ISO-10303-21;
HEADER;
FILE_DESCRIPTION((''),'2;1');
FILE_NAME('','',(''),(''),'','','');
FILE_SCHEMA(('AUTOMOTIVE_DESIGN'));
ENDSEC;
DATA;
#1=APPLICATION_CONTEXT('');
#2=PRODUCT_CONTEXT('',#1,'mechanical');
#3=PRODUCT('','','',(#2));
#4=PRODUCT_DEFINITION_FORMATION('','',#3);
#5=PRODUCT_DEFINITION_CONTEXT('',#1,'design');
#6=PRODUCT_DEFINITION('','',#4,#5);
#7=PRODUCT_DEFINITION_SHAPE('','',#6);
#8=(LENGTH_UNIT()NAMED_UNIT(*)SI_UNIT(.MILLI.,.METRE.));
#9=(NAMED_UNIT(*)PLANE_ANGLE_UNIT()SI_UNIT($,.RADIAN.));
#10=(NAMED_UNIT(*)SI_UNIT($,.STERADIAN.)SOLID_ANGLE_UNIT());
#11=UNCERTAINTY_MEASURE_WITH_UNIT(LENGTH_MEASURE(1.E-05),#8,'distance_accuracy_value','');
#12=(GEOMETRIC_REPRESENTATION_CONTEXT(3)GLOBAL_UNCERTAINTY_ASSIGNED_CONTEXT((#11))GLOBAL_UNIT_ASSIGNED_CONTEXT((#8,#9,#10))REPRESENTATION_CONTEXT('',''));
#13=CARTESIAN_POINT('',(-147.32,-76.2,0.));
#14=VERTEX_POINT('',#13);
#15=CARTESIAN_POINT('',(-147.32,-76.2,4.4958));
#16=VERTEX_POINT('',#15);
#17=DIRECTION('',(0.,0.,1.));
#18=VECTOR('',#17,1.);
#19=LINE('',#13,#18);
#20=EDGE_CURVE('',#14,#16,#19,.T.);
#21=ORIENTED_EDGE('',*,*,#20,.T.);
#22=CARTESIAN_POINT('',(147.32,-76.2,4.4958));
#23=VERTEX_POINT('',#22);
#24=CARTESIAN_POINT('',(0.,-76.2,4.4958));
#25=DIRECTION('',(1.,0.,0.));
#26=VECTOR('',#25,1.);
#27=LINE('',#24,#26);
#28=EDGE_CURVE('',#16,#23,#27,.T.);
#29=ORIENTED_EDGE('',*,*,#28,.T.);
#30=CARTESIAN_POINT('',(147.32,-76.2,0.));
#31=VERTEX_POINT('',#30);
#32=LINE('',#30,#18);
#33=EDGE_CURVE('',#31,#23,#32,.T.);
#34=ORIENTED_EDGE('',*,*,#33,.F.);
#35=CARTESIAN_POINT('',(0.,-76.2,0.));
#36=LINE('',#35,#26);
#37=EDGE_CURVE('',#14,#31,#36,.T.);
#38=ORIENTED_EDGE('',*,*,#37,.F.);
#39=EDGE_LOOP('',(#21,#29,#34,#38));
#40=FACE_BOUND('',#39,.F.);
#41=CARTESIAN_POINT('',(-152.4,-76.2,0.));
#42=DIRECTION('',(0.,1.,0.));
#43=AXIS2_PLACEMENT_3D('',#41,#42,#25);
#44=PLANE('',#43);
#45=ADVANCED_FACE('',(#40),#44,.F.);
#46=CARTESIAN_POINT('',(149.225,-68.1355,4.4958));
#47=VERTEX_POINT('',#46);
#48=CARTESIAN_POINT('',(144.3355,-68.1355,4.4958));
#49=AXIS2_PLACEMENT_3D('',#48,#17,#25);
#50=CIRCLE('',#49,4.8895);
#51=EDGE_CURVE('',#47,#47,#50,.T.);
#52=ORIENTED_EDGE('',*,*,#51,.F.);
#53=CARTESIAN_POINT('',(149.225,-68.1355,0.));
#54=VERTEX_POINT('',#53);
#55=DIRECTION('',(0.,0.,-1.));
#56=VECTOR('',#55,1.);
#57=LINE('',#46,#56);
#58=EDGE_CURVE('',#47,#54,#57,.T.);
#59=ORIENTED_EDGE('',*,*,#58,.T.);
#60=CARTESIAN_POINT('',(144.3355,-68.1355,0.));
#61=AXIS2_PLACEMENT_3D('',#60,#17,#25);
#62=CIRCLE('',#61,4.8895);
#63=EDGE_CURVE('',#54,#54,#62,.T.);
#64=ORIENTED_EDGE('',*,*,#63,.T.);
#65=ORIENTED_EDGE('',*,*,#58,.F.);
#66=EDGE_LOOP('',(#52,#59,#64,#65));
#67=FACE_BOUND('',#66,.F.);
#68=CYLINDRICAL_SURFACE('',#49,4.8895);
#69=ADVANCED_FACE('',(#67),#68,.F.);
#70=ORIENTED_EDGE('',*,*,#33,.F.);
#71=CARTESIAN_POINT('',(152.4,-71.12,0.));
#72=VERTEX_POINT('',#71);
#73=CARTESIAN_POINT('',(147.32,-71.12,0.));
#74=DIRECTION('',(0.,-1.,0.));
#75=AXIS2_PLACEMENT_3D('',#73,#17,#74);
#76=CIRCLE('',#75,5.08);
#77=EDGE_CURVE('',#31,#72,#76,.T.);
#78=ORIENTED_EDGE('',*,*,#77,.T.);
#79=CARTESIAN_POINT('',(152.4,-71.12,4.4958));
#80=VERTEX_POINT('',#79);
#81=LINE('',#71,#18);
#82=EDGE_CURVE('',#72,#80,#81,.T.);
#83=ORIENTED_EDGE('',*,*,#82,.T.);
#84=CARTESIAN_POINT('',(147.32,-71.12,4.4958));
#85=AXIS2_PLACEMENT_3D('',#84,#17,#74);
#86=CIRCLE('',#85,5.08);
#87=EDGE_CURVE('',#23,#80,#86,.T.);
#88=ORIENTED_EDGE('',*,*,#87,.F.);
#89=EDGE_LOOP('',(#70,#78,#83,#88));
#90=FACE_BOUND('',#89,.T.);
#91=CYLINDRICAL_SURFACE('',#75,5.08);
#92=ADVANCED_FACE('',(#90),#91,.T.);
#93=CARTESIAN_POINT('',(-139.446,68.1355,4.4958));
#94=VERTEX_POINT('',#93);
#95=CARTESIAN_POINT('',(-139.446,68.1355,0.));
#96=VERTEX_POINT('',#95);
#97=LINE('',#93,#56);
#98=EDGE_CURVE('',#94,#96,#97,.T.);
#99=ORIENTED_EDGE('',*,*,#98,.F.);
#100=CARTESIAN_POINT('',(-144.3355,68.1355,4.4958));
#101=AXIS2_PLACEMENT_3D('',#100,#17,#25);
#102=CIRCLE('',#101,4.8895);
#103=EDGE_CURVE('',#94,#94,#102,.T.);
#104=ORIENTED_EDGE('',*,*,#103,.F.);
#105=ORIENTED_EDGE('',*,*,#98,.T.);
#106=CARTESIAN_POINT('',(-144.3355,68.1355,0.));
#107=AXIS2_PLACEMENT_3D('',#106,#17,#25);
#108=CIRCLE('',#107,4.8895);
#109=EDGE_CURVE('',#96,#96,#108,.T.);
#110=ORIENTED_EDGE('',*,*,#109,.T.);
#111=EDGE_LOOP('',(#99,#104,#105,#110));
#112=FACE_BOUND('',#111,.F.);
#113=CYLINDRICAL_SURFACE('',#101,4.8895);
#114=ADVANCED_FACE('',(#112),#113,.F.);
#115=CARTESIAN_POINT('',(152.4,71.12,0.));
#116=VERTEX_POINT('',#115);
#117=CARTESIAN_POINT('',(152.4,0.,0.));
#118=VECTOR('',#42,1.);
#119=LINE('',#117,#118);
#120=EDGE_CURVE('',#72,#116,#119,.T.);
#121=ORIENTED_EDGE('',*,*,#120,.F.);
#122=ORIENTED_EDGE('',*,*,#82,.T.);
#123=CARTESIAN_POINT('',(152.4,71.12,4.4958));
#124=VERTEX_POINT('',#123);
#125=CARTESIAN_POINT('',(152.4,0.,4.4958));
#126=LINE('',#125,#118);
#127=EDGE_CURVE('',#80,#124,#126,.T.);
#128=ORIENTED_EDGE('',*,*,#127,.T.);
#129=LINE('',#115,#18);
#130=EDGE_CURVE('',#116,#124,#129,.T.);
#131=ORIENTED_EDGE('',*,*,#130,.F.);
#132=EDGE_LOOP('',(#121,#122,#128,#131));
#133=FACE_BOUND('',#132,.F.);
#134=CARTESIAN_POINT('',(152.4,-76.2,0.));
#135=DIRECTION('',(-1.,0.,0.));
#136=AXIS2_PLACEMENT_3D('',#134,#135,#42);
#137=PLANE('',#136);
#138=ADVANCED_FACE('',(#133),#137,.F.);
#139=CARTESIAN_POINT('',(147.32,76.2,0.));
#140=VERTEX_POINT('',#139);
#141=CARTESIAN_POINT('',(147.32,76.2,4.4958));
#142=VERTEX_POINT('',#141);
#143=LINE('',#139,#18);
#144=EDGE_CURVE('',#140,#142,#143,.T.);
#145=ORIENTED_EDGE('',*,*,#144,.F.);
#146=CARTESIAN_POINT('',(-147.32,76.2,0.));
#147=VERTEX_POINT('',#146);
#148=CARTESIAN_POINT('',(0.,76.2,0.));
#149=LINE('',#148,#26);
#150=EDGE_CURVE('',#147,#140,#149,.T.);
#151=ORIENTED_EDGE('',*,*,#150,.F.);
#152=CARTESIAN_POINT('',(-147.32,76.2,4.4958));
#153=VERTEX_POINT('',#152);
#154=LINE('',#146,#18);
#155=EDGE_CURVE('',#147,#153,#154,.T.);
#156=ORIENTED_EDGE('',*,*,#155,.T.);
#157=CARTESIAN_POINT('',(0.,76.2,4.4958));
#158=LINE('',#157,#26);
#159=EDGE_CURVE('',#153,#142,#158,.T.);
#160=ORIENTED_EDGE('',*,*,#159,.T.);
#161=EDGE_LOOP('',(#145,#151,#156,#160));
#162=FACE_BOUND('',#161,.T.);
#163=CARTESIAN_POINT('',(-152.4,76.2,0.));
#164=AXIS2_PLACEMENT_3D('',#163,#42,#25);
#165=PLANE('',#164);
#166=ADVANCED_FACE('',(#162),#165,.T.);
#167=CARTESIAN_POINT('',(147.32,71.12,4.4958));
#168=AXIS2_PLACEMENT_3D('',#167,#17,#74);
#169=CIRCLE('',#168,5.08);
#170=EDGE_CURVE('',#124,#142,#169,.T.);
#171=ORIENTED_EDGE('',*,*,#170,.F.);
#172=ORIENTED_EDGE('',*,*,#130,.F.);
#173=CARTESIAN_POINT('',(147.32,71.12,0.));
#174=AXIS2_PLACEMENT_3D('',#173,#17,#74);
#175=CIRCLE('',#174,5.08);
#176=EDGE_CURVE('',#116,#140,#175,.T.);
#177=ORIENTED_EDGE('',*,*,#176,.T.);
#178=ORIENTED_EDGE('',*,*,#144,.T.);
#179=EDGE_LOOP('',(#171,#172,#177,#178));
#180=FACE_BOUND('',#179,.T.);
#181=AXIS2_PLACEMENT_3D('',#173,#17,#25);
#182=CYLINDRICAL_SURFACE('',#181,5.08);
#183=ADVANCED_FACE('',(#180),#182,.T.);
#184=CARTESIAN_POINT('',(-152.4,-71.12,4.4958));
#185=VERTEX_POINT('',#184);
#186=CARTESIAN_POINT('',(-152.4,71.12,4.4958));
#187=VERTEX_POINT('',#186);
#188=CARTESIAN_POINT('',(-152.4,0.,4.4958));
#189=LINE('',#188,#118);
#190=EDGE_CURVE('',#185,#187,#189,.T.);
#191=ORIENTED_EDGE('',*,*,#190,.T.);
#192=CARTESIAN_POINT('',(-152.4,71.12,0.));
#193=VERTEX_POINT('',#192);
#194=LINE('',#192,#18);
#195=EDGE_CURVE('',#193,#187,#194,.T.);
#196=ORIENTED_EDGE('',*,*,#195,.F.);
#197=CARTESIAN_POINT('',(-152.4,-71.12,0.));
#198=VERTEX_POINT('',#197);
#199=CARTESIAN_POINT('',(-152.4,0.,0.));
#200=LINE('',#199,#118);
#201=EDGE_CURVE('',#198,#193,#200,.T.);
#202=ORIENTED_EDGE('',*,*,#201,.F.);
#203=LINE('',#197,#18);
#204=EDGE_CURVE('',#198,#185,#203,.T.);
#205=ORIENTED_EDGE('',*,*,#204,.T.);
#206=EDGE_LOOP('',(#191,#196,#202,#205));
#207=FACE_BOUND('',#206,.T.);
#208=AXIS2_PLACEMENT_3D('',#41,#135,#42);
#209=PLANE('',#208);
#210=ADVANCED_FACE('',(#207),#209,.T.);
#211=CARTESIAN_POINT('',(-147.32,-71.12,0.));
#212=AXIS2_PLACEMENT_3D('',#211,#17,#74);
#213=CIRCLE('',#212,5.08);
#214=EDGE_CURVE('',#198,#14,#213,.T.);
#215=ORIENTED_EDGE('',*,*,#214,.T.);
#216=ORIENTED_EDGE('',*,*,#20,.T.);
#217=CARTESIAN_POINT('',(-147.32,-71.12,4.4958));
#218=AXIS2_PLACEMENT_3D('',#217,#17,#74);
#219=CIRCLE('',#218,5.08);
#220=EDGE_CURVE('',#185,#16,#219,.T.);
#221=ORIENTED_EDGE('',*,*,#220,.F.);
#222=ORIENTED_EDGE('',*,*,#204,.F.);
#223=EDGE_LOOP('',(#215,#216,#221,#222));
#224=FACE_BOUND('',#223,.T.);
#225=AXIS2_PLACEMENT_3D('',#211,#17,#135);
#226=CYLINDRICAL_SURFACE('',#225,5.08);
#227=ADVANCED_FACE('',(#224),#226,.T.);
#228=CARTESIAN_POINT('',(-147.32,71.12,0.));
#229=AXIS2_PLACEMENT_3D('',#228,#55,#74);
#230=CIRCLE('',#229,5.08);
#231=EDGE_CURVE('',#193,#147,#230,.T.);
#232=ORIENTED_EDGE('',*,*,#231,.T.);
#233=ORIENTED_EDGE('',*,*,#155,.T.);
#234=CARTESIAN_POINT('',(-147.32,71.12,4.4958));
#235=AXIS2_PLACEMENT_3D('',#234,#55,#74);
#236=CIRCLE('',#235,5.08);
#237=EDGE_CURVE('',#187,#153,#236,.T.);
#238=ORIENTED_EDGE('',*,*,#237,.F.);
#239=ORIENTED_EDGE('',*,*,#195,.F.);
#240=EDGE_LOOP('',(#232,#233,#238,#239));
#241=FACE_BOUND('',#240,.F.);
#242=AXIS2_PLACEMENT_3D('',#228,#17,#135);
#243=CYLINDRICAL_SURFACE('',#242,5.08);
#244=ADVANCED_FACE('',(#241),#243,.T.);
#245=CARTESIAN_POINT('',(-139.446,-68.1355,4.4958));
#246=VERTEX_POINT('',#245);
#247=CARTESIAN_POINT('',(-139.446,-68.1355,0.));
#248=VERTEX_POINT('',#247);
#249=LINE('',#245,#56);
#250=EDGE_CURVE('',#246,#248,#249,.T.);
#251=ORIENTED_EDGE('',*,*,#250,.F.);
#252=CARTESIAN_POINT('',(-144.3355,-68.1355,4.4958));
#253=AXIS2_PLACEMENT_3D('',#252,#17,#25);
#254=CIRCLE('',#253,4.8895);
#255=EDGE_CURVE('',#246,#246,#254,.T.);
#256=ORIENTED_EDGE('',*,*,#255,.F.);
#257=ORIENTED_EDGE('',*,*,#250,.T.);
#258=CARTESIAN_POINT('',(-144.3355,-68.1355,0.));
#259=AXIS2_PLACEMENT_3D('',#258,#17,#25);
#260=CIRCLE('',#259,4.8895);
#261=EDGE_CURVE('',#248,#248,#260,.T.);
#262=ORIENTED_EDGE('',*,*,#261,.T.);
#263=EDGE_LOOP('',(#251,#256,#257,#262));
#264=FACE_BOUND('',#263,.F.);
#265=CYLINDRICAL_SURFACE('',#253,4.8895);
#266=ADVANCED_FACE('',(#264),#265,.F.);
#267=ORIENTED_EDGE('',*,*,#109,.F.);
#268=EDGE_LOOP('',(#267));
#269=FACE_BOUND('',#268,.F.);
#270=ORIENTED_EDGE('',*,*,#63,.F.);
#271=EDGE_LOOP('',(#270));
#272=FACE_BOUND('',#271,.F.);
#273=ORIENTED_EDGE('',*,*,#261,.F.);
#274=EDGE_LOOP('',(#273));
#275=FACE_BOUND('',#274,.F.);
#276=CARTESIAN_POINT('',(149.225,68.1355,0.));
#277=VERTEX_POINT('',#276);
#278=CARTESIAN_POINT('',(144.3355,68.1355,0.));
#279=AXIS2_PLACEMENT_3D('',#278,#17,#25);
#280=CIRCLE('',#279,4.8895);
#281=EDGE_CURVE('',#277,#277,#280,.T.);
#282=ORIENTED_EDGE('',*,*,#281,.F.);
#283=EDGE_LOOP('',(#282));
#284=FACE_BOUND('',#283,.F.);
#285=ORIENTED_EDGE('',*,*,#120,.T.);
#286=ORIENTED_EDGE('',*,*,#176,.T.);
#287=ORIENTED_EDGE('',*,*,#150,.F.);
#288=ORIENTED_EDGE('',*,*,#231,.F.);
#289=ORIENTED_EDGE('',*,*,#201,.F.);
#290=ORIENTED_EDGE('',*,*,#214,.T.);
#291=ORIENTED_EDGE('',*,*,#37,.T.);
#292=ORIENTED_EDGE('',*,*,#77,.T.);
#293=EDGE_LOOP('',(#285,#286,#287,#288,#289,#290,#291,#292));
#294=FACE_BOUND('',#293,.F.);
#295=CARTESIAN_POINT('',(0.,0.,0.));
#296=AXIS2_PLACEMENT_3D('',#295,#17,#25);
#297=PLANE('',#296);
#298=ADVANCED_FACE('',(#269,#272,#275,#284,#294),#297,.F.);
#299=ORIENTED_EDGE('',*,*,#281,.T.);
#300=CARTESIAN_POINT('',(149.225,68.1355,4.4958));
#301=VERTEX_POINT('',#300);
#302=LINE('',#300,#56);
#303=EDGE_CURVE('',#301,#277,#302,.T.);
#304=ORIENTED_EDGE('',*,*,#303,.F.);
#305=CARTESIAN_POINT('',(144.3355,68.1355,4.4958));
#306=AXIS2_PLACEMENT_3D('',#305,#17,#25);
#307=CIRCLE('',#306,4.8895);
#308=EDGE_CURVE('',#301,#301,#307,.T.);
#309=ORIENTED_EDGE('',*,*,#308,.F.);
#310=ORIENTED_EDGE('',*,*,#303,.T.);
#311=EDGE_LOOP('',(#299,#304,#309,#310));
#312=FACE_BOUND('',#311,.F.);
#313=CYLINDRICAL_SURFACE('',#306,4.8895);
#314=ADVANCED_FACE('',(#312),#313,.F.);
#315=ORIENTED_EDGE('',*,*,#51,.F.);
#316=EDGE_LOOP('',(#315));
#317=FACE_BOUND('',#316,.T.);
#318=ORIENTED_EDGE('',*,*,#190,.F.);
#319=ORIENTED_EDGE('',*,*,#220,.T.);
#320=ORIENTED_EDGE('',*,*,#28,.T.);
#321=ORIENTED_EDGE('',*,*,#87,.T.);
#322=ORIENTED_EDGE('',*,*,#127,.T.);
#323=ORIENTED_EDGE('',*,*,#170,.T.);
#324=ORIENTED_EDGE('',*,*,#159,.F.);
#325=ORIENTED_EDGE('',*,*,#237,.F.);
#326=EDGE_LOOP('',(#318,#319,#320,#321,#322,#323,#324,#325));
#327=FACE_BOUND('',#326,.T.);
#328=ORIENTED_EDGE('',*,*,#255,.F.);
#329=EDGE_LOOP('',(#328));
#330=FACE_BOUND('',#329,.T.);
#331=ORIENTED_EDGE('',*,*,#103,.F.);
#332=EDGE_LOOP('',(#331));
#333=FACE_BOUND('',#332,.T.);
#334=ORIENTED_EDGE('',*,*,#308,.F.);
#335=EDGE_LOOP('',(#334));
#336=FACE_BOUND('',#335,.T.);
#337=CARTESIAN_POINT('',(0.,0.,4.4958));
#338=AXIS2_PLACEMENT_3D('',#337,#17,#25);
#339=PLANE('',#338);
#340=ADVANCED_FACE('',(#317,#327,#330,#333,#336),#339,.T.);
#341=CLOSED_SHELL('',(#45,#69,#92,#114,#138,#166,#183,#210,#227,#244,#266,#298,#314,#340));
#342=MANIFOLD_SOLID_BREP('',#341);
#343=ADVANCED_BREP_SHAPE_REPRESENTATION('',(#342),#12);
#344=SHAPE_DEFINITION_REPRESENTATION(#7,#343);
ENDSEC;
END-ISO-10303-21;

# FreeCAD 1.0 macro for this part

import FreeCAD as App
import Part
import Sketcher

V = App.Vector
Q = App.Units.Quantity


def edges_at(feature, points):
    """Names of the edges that pass closest to the given points."""
    edges = feature.Shape.Edges
    near = lambda p: min(range(len(edges)), key=lambda i: edges[i].distToShape(Part.Vertex(*p))[0])
    return sorted({f"Edge{near(p) + 1}" for p in points})

doc = App.newDocument("Part")
params = doc.addObject("Spreadsheet::Sheet", "Params")
for row, (alias, value) in enumerate([
    ("sketch1_width", "12 in"),
    ("sketch1_height", "6 in"),
    ("pad1_length", "0.177 in"),
    ("fillet_radius", "0.2 in"),
    ("sketch2_diameter", "0.385 in"),
], start=1):
    params.set(f"A{row}", alias)
    params.set(f"B{row}", "=" + value)
    params.setAlias(f"B{row}", alias)

body = doc.addObject("PartDesign::Body", "Body")

# Sketch on XY plane
sketch1 = body.newObject("Sketcher::SketchObject", "Sketch")
sketch1.AttachmentSupport = (doc.getObject("XY_Plane"), [""])
sketch1.MapMode = "FlatFace"
sketch1.addGeometry([
    Part.LineSegment(V(-152.4, 76.2, 0), V(-152.4, -76.2, 0)),
    Part.LineSegment(V(-152.4, -76.2, 0), V(152.4, -76.2, 0)),
    Part.LineSegment(V(152.4, -76.2, 0), V(152.4, 76.2, 0)),
    Part.LineSegment(V(152.4, 76.2, 0), V(-152.4, 76.2, 0)),
], False)
sketch1.addConstraint([
    Sketcher.Constraint("Coincident", 0, 2, 1, 1),
    Sketcher.Constraint("Coincident", 1, 2, 2, 1),
    Sketcher.Constraint("Coincident", 2, 2, 3, 1),
    Sketcher.Constraint("Coincident", 3, 2, 0, 1),
    Sketcher.Constraint("Vertical", 0),
    Sketcher.Constraint("Horizontal", 1),
    Sketcher.Constraint("Vertical", 2),
    Sketcher.Constraint("Horizontal", 3),
    Sketcher.Constraint("Symmetric", 0, 2, 2, 2, -1, 1),
    Sketcher.Constraint("DistanceX", 1, 1, 1, 2, Q("12 in")),
    Sketcher.Constraint("DistanceY", 0, 2, 0, 1, Q("6 in")),
])
sketch1.setExpression("Constraints[9]", "Params.sketch1_width")
sketch1.setExpression("Constraints[10]", "Params.sketch1_height")
pad1 = body.newObject("PartDesign::Pad", "Pad")
pad1.Profile = sketch1
pad1.setExpression("Length", "Params.pad1_length")
doc.recompute()

fillet = body.newObject("PartDesign::Fillet", "Fillet")
fillet.Base = (pad1, edges_at(pad1, [
    (-152.4, 76.2, 2.248),
    (-152.4, -76.2, 2.248),
    (152.4, -76.2, 2.248),
    (152.4, 76.2, 2.248),
]))
fillet.setExpression("Radius", "Params.fillet_radius")

# Sketch on XY plane
sketch2 = body.newObject("Sketcher::SketchObject", "Sketch001")
sketch2.AttachmentSupport = (doc.getObject("XY_Plane"), [""])
sketch2.MapMode = "FlatFace"
sketch2.AttachmentOffset = App.Placement(V(0, 0, 0.177 * 25.4), App.Rotation())
sketch2.addGeometry([
    Part.Circle(V(-144.3355, 68.1355, 0), V(0, 0, 1), 4.8895),
    Part.Circle(V(144.3355, 68.1355, 0), V(0, 0, 1), 4.8895),
    Part.Circle(V(144.3355, -68.1355, 0), V(0, 0, 1), 4.8895),
    Part.Circle(V(-144.3355, -68.1355, 0), V(0, 0, 1), 4.8895),
], False)
sketch2.addConstraint([
    Sketcher.Constraint("Equal", 0, 1),
    Sketcher.Constraint("Equal", 1, 2),
    Sketcher.Constraint("Equal", 2, 3),
    Sketcher.Constraint("Symmetric", 0, 3, 2, 3, -1, 1),
    Sketcher.Constraint("Symmetric", 1, 3, 3, 3, -1, 1),
    Sketcher.Constraint("Symmetric", 0, 3, 1, 3, -2),
    Sketcher.Constraint("Diameter", 0, Q("0.385 in")),
    Sketcher.Constraint("DistanceX", 0, 3, 1, 3, Q("11.365 in")),
    Sketcher.Constraint("DistanceY", 2, 3, 1, 3, Q("5.365 in")),
])
sketch2.setExpression("Constraints[6]", "Params.sketch2_diameter")
pocket1 = body.newObject("PartDesign::Pocket", "Pocket")
pocket1.Profile = sketch2
pocket1.Type = "ThroughAll"

doc.recompute()
